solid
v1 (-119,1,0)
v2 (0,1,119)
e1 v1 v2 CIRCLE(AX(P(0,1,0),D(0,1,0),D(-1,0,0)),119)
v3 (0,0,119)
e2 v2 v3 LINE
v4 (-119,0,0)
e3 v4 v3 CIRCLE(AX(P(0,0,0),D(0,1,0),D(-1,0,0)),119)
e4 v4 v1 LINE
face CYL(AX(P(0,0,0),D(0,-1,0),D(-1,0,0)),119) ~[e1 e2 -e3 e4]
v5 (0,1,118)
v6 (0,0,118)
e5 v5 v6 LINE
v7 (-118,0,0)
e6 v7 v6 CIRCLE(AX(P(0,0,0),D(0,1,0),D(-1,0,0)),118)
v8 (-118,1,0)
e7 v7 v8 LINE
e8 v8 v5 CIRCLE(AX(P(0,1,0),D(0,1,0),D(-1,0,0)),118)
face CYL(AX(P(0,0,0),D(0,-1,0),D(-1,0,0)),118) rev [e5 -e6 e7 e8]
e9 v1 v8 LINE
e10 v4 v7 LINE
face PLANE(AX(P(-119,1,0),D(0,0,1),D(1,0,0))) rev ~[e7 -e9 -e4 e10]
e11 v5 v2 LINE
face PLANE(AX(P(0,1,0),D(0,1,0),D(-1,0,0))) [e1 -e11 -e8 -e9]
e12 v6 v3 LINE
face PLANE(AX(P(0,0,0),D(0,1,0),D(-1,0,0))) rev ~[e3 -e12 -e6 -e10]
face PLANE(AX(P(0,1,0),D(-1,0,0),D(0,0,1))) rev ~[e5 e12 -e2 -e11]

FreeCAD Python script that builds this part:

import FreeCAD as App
import Part
import Sketcher

V = App.Vector
Q = App.Units.Quantity


def add_polygon(sketch, points):
    """Adds a closed chain of lines whose ends are joined by coincident constraints."""
    first, n = sketch.GeometryCount, len(points)
    for a, b in zip(points, points[1:] + points[:1]):
        sketch.addGeometry(Part.LineSegment(App.Vector(*a, 0), App.Vector(*b, 0)), False)
    for i in range(n):
        sketch.addConstraint(Sketcher.Constraint("Coincident", first + i, 2, first + (i + 1) % n, 1))

doc = App.newDocument("Part")
body = doc.addObject("PartDesign::Body", "Body")

sketch1 = body.newObject("Sketcher::SketchObject", "Sketch")
sketch1.AttachmentSupport = (doc.getObject("XZ_Plane"), [""])
sketch1.MapMode = "FlatFace"
sketch1.addGeometry(Part.Circle(V(0, 0, 0), V(0, 0, 1), 119), False)
sketch1.addGeometry(Part.Circle(V(0, 0, 0), V(0, 0, 1), 118), False)
sketch1.addConstraint(Sketcher.Constraint("Coincident", 0, 3, -1, 1))
sketch1.addConstraint(Sketcher.Constraint("Coincident", 1, 3, -1, 1))
sketch1.addConstraint(Sketcher.Constraint("Diameter", 1, Q("236 mm")))
sketch1.addConstraint(Sketcher.Constraint("Diameter", 0, Q("238 mm")))
pad1 = body.newObject("PartDesign::Pad", "Pad")
pad1.Profile = sketch1
pad1.Length = 1
pad1.Reversed = True

sketch2 = body.newObject("Sketcher::SketchObject", "Sketch001")
sketch2.AttachmentSupport = (doc.getObject("XZ_Plane"), [""])
sketch2.MapMode = "FlatFace"
sketch2.AttachmentOffset = App.Placement(V(0, 0, -1), App.Rotation())
add_polygon(sketch2, [(0, 0), (0, 119), (127, 119), (127, -155), (-119, -155), (-119, 0)])
sketch2.addConstraint(Sketcher.Constraint("Vertical", 0))
sketch2.addConstraint(Sketcher.Constraint("Horizontal", 1))
sketch2.addConstraint(Sketcher.Constraint("Vertical", 2))
sketch2.addConstraint(Sketcher.Constraint("Horizontal", 3))
sketch2.addConstraint(Sketcher.Constraint("Vertical", 4))
sketch2.addConstraint(Sketcher.Constraint("Horizontal", 5))
sketch2.addConstraint(Sketcher.Constraint("Coincident", 5, 2, -1, 1))
sketch2.addConstraint(Sketcher.Constraint("Equal", 5, 0))
sketch2.addConstraint(Sketcher.Constraint("DistanceX", 5, 1, 5, 2, Q("119 mm")))
sketch2.addConstraint(Sketcher.Constraint("DistanceX", 1, 1, 1, 2, Q("127.2193 mm")))
sketch2.addConstraint(Sketcher.Constraint("DistanceY", 2, 2, 2, 1, Q("274.2075 mm")))
pocket1 = body.newObject("PartDesign::Pocket", "Pocket")
pocket1.Profile = sketch2
pocket1.Type = "ThroughAll"
pocket1.Midplane = True

doc.recompute()
